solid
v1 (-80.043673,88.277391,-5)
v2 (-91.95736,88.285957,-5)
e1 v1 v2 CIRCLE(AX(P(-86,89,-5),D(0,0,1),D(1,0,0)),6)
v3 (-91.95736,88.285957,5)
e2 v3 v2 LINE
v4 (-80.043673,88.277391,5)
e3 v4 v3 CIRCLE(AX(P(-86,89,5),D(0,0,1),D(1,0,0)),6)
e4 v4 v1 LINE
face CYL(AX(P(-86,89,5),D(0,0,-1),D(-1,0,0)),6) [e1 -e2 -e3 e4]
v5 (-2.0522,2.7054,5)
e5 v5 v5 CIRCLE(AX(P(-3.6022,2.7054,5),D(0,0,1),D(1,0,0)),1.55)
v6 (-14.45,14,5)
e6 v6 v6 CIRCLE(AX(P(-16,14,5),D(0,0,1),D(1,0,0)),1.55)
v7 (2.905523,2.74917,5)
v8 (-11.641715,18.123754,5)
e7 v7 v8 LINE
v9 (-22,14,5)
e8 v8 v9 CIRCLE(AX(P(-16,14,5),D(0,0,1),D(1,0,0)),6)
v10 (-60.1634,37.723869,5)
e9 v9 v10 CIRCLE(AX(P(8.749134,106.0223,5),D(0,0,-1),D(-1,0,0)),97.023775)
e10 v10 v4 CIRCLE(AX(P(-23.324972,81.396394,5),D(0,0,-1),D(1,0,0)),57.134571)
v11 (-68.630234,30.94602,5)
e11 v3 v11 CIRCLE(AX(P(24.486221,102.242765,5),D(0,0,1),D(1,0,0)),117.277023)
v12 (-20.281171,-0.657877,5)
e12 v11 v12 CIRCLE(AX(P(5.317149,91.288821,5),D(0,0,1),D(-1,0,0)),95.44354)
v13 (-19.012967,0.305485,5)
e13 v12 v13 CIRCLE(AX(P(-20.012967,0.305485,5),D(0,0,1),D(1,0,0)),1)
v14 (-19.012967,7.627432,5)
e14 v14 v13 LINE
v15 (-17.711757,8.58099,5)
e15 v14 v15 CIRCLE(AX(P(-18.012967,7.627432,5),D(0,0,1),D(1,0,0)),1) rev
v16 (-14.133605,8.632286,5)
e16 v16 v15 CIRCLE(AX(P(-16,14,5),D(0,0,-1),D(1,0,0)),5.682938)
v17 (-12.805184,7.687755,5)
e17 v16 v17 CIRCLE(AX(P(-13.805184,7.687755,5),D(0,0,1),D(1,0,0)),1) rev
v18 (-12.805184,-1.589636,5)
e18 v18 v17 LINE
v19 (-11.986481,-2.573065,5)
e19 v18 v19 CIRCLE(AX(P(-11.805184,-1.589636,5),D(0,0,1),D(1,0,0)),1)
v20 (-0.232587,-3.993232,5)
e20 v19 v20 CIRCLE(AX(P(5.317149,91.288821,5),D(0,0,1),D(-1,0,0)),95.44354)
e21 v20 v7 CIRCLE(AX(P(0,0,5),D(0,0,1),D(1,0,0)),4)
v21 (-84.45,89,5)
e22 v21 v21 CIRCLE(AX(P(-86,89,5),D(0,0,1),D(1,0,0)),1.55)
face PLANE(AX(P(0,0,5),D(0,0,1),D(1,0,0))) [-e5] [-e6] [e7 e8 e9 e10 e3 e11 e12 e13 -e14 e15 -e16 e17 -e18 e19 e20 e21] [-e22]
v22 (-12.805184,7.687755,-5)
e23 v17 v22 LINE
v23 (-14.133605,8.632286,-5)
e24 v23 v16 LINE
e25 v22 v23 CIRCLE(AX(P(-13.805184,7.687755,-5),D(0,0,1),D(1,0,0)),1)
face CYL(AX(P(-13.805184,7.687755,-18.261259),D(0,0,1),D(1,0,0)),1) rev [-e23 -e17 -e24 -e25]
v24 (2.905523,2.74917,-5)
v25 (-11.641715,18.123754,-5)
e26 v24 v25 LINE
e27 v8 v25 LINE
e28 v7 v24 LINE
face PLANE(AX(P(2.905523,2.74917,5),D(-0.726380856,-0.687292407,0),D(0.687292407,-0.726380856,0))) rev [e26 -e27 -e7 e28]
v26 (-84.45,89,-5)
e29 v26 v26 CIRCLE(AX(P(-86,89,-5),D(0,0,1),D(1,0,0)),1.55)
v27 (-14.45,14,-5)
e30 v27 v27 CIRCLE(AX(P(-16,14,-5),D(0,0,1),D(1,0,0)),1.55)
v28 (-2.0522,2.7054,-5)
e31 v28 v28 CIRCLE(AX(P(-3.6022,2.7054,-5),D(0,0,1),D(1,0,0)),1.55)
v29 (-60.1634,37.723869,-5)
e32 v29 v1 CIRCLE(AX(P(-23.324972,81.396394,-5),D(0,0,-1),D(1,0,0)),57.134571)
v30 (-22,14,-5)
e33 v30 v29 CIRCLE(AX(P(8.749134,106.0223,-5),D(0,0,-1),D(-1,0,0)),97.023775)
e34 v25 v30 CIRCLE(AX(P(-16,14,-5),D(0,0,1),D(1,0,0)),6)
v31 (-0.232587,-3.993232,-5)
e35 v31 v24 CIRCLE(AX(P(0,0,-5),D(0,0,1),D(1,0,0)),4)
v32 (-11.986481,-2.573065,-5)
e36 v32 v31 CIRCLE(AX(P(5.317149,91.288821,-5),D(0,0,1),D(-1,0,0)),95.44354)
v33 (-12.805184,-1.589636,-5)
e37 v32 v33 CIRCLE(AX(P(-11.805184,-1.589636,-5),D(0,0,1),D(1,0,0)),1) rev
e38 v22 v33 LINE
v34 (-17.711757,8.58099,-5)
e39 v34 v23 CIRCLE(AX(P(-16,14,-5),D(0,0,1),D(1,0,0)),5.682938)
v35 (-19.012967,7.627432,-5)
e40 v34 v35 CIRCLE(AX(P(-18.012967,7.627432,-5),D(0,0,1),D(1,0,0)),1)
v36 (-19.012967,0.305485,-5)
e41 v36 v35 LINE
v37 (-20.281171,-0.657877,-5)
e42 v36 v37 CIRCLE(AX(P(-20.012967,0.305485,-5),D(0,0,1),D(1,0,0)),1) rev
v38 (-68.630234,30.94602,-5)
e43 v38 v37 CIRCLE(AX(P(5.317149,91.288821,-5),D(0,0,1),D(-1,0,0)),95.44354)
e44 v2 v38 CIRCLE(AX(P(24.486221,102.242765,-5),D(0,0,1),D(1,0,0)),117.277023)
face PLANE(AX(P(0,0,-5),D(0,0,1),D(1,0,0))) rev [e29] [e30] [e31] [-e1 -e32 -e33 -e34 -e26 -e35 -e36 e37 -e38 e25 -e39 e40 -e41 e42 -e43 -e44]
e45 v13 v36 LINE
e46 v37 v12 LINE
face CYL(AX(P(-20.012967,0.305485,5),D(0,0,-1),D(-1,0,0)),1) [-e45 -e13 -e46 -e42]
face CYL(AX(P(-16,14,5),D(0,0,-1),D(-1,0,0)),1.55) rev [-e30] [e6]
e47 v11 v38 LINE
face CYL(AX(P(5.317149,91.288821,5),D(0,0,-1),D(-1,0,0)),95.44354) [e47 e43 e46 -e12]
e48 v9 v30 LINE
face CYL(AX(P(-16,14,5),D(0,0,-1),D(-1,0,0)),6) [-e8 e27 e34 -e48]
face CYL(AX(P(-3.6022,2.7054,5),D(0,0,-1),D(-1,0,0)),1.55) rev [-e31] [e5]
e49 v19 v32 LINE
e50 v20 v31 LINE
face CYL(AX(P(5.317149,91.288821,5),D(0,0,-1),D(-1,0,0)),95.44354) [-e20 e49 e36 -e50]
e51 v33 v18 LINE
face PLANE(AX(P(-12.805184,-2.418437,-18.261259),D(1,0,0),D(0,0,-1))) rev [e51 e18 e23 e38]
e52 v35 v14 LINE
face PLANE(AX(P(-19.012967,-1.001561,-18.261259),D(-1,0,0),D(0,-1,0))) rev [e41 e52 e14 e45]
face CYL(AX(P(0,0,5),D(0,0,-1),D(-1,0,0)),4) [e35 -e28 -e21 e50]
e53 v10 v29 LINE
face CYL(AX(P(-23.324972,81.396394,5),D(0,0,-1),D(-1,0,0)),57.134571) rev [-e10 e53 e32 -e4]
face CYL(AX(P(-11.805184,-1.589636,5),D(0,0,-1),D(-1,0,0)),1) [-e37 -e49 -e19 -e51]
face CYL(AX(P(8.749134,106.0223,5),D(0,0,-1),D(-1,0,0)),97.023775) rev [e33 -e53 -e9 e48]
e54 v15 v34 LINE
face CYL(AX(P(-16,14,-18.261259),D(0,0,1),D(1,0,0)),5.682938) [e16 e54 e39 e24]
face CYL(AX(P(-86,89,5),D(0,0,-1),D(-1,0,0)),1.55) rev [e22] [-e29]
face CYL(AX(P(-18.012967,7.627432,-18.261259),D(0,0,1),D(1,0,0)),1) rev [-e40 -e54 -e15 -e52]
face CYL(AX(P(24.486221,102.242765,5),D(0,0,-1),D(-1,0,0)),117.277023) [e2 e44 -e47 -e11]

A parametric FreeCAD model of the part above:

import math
import FreeCAD as App
import Part
import Sketcher


def edges_at(feature, points):
    """Names of the edges that pass closest to the given points."""
    edges = feature.Shape.Edges
    near = lambda p: min(range(len(edges)), key=lambda i: edges[i].distToShape(Part.Vertex(*p))[0])
    return sorted({f"Edge{near(p) + 1}" for p in points})

doc = App.newDocument("Part")
params = doc.addObject("Spreadsheet::Sheet", "Params")
for row, (alias, value) in enumerate([
    ("sketch1_radius", "6 mm"),
    ("sketch1_radius2", "4 mm"),
    ("sketch1_diameter", "3.1 mm"),
    ("pad1_length", "5 mm"),
    ("pad1_length2", "5 mm"),
    ("pocket1_length", "10 mm"),
    ("fillet_radius", "1 mm"),
], start=1):
    params.set(f"A{row}", alias)
    params.set(f"B{row}", "=" + value)
    params.setAlias(f"B{row}", alias)

body = doc.addObject("PartDesign::Body", "Body")

sketch1 = body.newObject("Sketcher::SketchObject", "Sketch")
sketch1.AttachmentSupport = (doc.getObject("XY_Plane"), [""])
sketch1.MapMode = "FlatFace"
sketch1.addGeometry(Part.LineSegment(App.Vector(2.905523, 2.74917, 0), App.Vector(-11.641715, 18.123754, 0)), False)
sketch1.addGeometry(Part.ArcOfCircle(Part.Circle(App.Vector(-16, 14, 0), App.Vector(0, 0, 1), 6), math.radians(43.41616), math.radians(180)), False)
sketch1.addGeometry(Part.ArcOfCircle(Part.Circle(App.Vector(8.749134, 106.0223, 0), App.Vector(0, 0, 1), 97.023775), math.radians(-135.256432), math.radians(-108.476985)), False)
sketch1.addGeometry(Part.ArcOfCircle(Part.Circle(App.Vector(-23.324972, 81.396394, 0), App.Vector(0, 0, 1), 57.134571), math.radians(173.082797), math.radians(229.851868)), False)
sketch1.addGeometry(Part.ArcOfCircle(Part.Circle(App.Vector(-86, 89, 0), App.Vector(0, 0, 1), 6), math.radians(-6.917203), math.radians(186.834808)), False)
sketch1.addGeometry(Part.ArcOfCircle(Part.Circle(App.Vector(24.486221, 102.242765, 0), App.Vector(0, 0, 1), 117.277023), math.radians(-173.165192), math.radians(-142.559699)), False)
sketch1.addGeometry(Part.ArcOfCircle(Part.Circle(App.Vector(5.317149, 91.288821, 0), App.Vector(0, 0, 1), 95.44354), math.radians(-140.784747), math.radians(-93.333447)), False)
sketch1.addGeometry(Part.ArcOfCircle(Part.Circle(App.Vector(0, 0, 0), App.Vector(0, 0, 1), 4), math.radians(-93.333447), math.radians(43.41616)), False)
sketch1.addGeometry(Part.Circle(App.Vector(-3.6022, 2.7054, 0), App.Vector(0, 0, 1), 1.55), False)
sketch1.addGeometry(Part.Circle(App.Vector(-16, 14, 0), App.Vector(0, 0, 1), 1.55), False)
sketch1.addGeometry(Part.Circle(App.Vector(-86, 89, 0), App.Vector(0, 0, 1), 1.55), False)
sketch1.addConstraint(Sketcher.Constraint("Tangent", 0, 2, 1, 1))
sketch1.addConstraint(Sketcher.Constraint("Coincident", 1, 2, 2, 2))
sketch1.addConstraint(Sketcher.Constraint("Coincident", 2, 1, 3, 2))
sketch1.addConstraint(Sketcher.Constraint("Tangent", 3, 1, 4, 1))
sketch1.addConstraint(Sketcher.Constraint("Tangent", 4, 2, 5, 1))
sketch1.addConstraint(Sketcher.Constraint("Coincident", 5, 2, 6, 1))
sketch1.addConstraint(Sketcher.Constraint("Tangent", 6, 2, 7, 1))
sketch1.addConstraint(Sketcher.Constraint("Tangent", 7, 2, 0, 1))
sketch1.addConstraint(Sketcher.Constraint("Coincident", 7, 3, -1, 1))
sketch1.addConstraint(Sketcher.Constraint("Coincident", 9, 3, 1, 3))
sketch1.addConstraint(Sketcher.Constraint("Coincident", 10, 3, 4, 3))
sketch1.addConstraint(Sketcher.Constraint("Equal", 1, 4))
sketch1.addConstraint(Sketcher.Constraint("Equal", 8, 9))
sketch1.addConstraint(Sketcher.Constraint("Equal", 9, 10))
sketch1.addConstraint(Sketcher.Constraint("Horizontal", 9, 3, 1, 2))
sketch1.addConstraint(Sketcher.Constraint("Radius", 1, 6.0))
sketch1.addConstraint(Sketcher.Constraint("Radius", 7, 4.0))
sketch1.addConstraint(Sketcher.Constraint("Diameter", 8, 3.1))
sketch1.addConstraint(Sketcher.Constraint("DistanceX", 1, 3, -1, 1, 16.0))
sketch1.addConstraint(Sketcher.Constraint("DistanceY", -1, 1, 1, 3, 14.0))
sketch1.addConstraint(Sketcher.Constraint("DistanceX", 4, 3, -1, 1, 86.0))
sketch1.addConstraint(Sketcher.Constraint("DistanceY", -1, 1, 4, 3, 89.0))
sketch1.addConstraint(Sketcher.Constraint("Radius", 3, 57.134571))
sketch1.addConstraint(Sketcher.Constraint("Radius", 6, 95.44354))
sketch1.addConstraint(Sketcher.Constraint("Radius", 2, 97.023775))
sketch1.addConstraint(Sketcher.Constraint("Radius", 5, 117.277023))
sketch1.addConstraint(Sketcher.Constraint("DistanceY", -1, 1, 2, 3, 106.0223))
sketch1.addConstraint(Sketcher.Constraint("DistanceX", 8, 3, -1, 1, 3.6022))
sketch1.addConstraint(Sketcher.Constraint("DistanceY", -1, 1, 8, 3, 2.7054))
sketch1.addConstraint(Sketcher.Constraint("DistanceX", 2, 1, -1, 1, 60.1634))
sketch1.addConstraint(Sketcher.Constraint("DistanceX", -1, 1, 5, 3, 24.486221))
sketch1.addConstraint(Sketcher.Constraint("DistanceX", -1, 1, 6, 3, 5.317149))
sketch1.setExpression("Constraints[15]", "Params.sketch1_radius")
sketch1.setExpression("Constraints[16]", "Params.sketch1_radius2")
sketch1.setExpression("Constraints[17]", "Params.sketch1_diameter")
pad1 = body.newObject("PartDesign::Pad", "Pad")
pad1.Profile = sketch1
pad1.Type = "TwoLengths"
pad1.setExpression("Length", "Params.pad1_length")
pad1.setExpression("Length2", "Params.pad1_length2")

sketch2 = body.newObject("Sketcher::SketchObject", "Sketch001")
sketch2.AttachmentSupport = (doc.getObject("XY_Plane"), [""])
sketch2.MapMode = "FlatFace"
sketch2.AttachmentOffset = App.Placement(App.Vector(0, 0, -5), App.Rotation())
sketch2.addGeometry(Part.LineSegment(App.Vector(-19.012967, 9.181513, 0), App.Vector(-19.012967, -1.001561, 0)), False)
sketch2.addGeometry(Part.ArcOfCircle(Part.Circle(App.Vector(5.317149, 91.288821, 0), App.Vector(0, 0, 1), 95.443539), math.radians(-104.768627), math.radians(-100.945484)), False)
sketch2.addGeometry(Part.LineSegment(App.Vector(-12.805184, -2.418437, 0), App.Vector(-12.805184, 9.300113, 0)), False)
sketch2.addGeometry(Part.ArcOfCircle(Part.Circle(App.Vector(-16, 14, 0), App.Vector(0, 0, 1), 5.682938), math.radians(-122.017459), math.radians(-55.793529)), False)
sketch2.addConstraint(Sketcher.Constraint("Coincident", 0, 2, 1, 1))
sketch2.addConstraint(Sketcher.Constraint("Coincident", 1, 2, 2, 1))
sketch2.addConstraint(Sketcher.Constraint("Coincident", 2, 2, 3, 2))
sketch2.addConstraint(Sketcher.Constraint("Coincident", 3, 1, 0, 1))
sketch2.addConstraint(Sketcher.Constraint("Vertical", 0))
sketch2.addConstraint(Sketcher.Constraint("Vertical", 2))
sketch2.addConstraint(Sketcher.Constraint("DistanceX", 3, 3, -1, 1, 16.0))
sketch2.addConstraint(Sketcher.Constraint("DistanceY", -1, 1, 3, 3, 14.0))
sketch2.addConstraint(Sketcher.Constraint("Radius", 1, 95.443539))
sketch2.addConstraint(Sketcher.Constraint("Radius", 3, 5.682938))
sketch2.addConstraint(Sketcher.Constraint("DistanceY", 2, 1, 2, 2, 11.718551))
sketch2.addConstraint(Sketcher.Constraint("DistanceY", 3, 1, 2, 2, 0.1186))
sketch2.addConstraint(Sketcher.Constraint("DistanceY", 0, 2, 0, 1, 10.183075))
sketch2.addConstraint(Sketcher.Constraint("DistanceX", -1, 1, 1, 3, 5.317149))
pocket1 = body.newObject("PartDesign::Pocket", "Pocket")
pocket1.Profile = sketch2
pocket1.setExpression("Length", "Params.pocket1_length")
pocket1.Reversed = True
doc.recompute()

fillet = body.newObject("PartDesign::Fillet", "Fillet")
fillet.Base = (pocket1, edges_at(pocket1, [
    (-12.805, -2.418, 0),
    (-19.013, -1.002, 0),
    (-19.013, 9.182, 0),
    (-12.805, 9.3, 0),
]))
fillet.setExpression("Radius", "Params.fillet_radius")

doc.recompute()
